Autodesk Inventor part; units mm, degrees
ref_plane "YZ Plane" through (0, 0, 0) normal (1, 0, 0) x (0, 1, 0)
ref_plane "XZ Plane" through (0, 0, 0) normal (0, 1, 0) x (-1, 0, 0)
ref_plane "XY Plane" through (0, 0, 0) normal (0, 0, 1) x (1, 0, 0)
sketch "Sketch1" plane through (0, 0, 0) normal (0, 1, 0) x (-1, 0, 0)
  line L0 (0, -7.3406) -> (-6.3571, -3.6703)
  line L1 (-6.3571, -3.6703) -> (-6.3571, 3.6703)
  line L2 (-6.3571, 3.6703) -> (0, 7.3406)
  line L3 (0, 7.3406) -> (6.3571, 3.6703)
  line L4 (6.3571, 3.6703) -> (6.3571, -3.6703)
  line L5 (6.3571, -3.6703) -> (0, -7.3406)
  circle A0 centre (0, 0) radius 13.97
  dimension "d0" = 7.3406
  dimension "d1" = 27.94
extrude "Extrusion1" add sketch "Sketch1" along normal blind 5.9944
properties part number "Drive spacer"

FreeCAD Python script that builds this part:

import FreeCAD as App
import Part
import Sketcher

V = App.Vector
Q = App.Units.Quantity


def add_polygon(sketch, points):
    """Adds a closed chain of lines whose ends are joined by coincident constraints."""
    first, n = sketch.GeometryCount, len(points)
    for a, b in zip(points, points[1:] + points[:1]):
        sketch.addGeometry(Part.LineSegment(App.Vector(*a, 0), App.Vector(*b, 0)), False)
    for i in range(n):
        sketch.addConstraint(Sketcher.Constraint("Coincident", first + i, 2, first + (i + 1) % n, 1))

doc = App.newDocument("Part")
params = doc.addObject("Spreadsheet::Sheet", "Params")
for row, (alias, value) in enumerate([
    ("sketch1_diameter", "1.1 in"),
    ("sketch1_height", "0.289 in"),
    ("sketch1_length", "0.289 in"),
    ("pad1_length", "0.236 in"),
], start=1):
    params.set(f"A{row}", alias)
    params.set(f"B{row}", "=" + value)
    params.setAlias(f"B{row}", alias)

body = doc.addObject("PartDesign::Body", "Body")

sketch1 = doc.addObject("Sketcher::SketchObject", "Sketch")
body.addObject(sketch1)
sketch1.AttachmentSupport = (doc.XZ_Plane, [""])
sketch1.MapMode = "FlatFace"
sketch1.addGeometry(Part.Circle(V(0, 0, 0), V(0, 0, 1), 13.97), False)
add_polygon(sketch1, [(-6.3571, -3.6703), (0, -7.3406), (6.3571, -3.6703), (6.3571, 3.6703), (0, 7.3406), (-6.3571, 3.6703)])
sketch1.addConstraint([
    Sketcher.Constraint("Vertical", 3),
    Sketcher.Constraint("Vertical", 6),
    Sketcher.Constraint("Coincident", 0, 3, -1, 1),
    Sketcher.Constraint("Symmetric", 1, 2, 4, 2, -1, 1),
    Sketcher.Constraint("Symmetric", 2, 2, 5, 2, -1, 1),
    Sketcher.Constraint("PointOnObject", 1, 2, -2),
    Sketcher.Constraint("Parallel", 1, 4),
    Sketcher.Constraint("Horizontal", 3, 2, 5, 2),
    Sketcher.Constraint("Diameter", 0, Q("1.1 in")),
    Sketcher.Constraint("DistanceY", 3, 1, 3, 2, Q("0.289 in")),
    Sketcher.Constraint("Distance", 1, Q("0.289 in")),
    Sketcher.Constraint("DistanceY", 1, 2, -1, 1, Q("0.289 in")),
])
sketch1.setExpression("Constraints[14]", "Params.sketch1_diameter")
sketch1.setExpression("Constraints[15]", "Params.sketch1_height")
sketch1.setExpression("Constraints[16]", "Params.sketch1_length")
pad1 = doc.addObject("PartDesign::Pad", "Pad")
body.addObject(pad1)
pad1.Profile = sketch1
pad1.setExpression("Length", "Params.pad1_length")
pad1.Reversed = True

doc.recompute()
